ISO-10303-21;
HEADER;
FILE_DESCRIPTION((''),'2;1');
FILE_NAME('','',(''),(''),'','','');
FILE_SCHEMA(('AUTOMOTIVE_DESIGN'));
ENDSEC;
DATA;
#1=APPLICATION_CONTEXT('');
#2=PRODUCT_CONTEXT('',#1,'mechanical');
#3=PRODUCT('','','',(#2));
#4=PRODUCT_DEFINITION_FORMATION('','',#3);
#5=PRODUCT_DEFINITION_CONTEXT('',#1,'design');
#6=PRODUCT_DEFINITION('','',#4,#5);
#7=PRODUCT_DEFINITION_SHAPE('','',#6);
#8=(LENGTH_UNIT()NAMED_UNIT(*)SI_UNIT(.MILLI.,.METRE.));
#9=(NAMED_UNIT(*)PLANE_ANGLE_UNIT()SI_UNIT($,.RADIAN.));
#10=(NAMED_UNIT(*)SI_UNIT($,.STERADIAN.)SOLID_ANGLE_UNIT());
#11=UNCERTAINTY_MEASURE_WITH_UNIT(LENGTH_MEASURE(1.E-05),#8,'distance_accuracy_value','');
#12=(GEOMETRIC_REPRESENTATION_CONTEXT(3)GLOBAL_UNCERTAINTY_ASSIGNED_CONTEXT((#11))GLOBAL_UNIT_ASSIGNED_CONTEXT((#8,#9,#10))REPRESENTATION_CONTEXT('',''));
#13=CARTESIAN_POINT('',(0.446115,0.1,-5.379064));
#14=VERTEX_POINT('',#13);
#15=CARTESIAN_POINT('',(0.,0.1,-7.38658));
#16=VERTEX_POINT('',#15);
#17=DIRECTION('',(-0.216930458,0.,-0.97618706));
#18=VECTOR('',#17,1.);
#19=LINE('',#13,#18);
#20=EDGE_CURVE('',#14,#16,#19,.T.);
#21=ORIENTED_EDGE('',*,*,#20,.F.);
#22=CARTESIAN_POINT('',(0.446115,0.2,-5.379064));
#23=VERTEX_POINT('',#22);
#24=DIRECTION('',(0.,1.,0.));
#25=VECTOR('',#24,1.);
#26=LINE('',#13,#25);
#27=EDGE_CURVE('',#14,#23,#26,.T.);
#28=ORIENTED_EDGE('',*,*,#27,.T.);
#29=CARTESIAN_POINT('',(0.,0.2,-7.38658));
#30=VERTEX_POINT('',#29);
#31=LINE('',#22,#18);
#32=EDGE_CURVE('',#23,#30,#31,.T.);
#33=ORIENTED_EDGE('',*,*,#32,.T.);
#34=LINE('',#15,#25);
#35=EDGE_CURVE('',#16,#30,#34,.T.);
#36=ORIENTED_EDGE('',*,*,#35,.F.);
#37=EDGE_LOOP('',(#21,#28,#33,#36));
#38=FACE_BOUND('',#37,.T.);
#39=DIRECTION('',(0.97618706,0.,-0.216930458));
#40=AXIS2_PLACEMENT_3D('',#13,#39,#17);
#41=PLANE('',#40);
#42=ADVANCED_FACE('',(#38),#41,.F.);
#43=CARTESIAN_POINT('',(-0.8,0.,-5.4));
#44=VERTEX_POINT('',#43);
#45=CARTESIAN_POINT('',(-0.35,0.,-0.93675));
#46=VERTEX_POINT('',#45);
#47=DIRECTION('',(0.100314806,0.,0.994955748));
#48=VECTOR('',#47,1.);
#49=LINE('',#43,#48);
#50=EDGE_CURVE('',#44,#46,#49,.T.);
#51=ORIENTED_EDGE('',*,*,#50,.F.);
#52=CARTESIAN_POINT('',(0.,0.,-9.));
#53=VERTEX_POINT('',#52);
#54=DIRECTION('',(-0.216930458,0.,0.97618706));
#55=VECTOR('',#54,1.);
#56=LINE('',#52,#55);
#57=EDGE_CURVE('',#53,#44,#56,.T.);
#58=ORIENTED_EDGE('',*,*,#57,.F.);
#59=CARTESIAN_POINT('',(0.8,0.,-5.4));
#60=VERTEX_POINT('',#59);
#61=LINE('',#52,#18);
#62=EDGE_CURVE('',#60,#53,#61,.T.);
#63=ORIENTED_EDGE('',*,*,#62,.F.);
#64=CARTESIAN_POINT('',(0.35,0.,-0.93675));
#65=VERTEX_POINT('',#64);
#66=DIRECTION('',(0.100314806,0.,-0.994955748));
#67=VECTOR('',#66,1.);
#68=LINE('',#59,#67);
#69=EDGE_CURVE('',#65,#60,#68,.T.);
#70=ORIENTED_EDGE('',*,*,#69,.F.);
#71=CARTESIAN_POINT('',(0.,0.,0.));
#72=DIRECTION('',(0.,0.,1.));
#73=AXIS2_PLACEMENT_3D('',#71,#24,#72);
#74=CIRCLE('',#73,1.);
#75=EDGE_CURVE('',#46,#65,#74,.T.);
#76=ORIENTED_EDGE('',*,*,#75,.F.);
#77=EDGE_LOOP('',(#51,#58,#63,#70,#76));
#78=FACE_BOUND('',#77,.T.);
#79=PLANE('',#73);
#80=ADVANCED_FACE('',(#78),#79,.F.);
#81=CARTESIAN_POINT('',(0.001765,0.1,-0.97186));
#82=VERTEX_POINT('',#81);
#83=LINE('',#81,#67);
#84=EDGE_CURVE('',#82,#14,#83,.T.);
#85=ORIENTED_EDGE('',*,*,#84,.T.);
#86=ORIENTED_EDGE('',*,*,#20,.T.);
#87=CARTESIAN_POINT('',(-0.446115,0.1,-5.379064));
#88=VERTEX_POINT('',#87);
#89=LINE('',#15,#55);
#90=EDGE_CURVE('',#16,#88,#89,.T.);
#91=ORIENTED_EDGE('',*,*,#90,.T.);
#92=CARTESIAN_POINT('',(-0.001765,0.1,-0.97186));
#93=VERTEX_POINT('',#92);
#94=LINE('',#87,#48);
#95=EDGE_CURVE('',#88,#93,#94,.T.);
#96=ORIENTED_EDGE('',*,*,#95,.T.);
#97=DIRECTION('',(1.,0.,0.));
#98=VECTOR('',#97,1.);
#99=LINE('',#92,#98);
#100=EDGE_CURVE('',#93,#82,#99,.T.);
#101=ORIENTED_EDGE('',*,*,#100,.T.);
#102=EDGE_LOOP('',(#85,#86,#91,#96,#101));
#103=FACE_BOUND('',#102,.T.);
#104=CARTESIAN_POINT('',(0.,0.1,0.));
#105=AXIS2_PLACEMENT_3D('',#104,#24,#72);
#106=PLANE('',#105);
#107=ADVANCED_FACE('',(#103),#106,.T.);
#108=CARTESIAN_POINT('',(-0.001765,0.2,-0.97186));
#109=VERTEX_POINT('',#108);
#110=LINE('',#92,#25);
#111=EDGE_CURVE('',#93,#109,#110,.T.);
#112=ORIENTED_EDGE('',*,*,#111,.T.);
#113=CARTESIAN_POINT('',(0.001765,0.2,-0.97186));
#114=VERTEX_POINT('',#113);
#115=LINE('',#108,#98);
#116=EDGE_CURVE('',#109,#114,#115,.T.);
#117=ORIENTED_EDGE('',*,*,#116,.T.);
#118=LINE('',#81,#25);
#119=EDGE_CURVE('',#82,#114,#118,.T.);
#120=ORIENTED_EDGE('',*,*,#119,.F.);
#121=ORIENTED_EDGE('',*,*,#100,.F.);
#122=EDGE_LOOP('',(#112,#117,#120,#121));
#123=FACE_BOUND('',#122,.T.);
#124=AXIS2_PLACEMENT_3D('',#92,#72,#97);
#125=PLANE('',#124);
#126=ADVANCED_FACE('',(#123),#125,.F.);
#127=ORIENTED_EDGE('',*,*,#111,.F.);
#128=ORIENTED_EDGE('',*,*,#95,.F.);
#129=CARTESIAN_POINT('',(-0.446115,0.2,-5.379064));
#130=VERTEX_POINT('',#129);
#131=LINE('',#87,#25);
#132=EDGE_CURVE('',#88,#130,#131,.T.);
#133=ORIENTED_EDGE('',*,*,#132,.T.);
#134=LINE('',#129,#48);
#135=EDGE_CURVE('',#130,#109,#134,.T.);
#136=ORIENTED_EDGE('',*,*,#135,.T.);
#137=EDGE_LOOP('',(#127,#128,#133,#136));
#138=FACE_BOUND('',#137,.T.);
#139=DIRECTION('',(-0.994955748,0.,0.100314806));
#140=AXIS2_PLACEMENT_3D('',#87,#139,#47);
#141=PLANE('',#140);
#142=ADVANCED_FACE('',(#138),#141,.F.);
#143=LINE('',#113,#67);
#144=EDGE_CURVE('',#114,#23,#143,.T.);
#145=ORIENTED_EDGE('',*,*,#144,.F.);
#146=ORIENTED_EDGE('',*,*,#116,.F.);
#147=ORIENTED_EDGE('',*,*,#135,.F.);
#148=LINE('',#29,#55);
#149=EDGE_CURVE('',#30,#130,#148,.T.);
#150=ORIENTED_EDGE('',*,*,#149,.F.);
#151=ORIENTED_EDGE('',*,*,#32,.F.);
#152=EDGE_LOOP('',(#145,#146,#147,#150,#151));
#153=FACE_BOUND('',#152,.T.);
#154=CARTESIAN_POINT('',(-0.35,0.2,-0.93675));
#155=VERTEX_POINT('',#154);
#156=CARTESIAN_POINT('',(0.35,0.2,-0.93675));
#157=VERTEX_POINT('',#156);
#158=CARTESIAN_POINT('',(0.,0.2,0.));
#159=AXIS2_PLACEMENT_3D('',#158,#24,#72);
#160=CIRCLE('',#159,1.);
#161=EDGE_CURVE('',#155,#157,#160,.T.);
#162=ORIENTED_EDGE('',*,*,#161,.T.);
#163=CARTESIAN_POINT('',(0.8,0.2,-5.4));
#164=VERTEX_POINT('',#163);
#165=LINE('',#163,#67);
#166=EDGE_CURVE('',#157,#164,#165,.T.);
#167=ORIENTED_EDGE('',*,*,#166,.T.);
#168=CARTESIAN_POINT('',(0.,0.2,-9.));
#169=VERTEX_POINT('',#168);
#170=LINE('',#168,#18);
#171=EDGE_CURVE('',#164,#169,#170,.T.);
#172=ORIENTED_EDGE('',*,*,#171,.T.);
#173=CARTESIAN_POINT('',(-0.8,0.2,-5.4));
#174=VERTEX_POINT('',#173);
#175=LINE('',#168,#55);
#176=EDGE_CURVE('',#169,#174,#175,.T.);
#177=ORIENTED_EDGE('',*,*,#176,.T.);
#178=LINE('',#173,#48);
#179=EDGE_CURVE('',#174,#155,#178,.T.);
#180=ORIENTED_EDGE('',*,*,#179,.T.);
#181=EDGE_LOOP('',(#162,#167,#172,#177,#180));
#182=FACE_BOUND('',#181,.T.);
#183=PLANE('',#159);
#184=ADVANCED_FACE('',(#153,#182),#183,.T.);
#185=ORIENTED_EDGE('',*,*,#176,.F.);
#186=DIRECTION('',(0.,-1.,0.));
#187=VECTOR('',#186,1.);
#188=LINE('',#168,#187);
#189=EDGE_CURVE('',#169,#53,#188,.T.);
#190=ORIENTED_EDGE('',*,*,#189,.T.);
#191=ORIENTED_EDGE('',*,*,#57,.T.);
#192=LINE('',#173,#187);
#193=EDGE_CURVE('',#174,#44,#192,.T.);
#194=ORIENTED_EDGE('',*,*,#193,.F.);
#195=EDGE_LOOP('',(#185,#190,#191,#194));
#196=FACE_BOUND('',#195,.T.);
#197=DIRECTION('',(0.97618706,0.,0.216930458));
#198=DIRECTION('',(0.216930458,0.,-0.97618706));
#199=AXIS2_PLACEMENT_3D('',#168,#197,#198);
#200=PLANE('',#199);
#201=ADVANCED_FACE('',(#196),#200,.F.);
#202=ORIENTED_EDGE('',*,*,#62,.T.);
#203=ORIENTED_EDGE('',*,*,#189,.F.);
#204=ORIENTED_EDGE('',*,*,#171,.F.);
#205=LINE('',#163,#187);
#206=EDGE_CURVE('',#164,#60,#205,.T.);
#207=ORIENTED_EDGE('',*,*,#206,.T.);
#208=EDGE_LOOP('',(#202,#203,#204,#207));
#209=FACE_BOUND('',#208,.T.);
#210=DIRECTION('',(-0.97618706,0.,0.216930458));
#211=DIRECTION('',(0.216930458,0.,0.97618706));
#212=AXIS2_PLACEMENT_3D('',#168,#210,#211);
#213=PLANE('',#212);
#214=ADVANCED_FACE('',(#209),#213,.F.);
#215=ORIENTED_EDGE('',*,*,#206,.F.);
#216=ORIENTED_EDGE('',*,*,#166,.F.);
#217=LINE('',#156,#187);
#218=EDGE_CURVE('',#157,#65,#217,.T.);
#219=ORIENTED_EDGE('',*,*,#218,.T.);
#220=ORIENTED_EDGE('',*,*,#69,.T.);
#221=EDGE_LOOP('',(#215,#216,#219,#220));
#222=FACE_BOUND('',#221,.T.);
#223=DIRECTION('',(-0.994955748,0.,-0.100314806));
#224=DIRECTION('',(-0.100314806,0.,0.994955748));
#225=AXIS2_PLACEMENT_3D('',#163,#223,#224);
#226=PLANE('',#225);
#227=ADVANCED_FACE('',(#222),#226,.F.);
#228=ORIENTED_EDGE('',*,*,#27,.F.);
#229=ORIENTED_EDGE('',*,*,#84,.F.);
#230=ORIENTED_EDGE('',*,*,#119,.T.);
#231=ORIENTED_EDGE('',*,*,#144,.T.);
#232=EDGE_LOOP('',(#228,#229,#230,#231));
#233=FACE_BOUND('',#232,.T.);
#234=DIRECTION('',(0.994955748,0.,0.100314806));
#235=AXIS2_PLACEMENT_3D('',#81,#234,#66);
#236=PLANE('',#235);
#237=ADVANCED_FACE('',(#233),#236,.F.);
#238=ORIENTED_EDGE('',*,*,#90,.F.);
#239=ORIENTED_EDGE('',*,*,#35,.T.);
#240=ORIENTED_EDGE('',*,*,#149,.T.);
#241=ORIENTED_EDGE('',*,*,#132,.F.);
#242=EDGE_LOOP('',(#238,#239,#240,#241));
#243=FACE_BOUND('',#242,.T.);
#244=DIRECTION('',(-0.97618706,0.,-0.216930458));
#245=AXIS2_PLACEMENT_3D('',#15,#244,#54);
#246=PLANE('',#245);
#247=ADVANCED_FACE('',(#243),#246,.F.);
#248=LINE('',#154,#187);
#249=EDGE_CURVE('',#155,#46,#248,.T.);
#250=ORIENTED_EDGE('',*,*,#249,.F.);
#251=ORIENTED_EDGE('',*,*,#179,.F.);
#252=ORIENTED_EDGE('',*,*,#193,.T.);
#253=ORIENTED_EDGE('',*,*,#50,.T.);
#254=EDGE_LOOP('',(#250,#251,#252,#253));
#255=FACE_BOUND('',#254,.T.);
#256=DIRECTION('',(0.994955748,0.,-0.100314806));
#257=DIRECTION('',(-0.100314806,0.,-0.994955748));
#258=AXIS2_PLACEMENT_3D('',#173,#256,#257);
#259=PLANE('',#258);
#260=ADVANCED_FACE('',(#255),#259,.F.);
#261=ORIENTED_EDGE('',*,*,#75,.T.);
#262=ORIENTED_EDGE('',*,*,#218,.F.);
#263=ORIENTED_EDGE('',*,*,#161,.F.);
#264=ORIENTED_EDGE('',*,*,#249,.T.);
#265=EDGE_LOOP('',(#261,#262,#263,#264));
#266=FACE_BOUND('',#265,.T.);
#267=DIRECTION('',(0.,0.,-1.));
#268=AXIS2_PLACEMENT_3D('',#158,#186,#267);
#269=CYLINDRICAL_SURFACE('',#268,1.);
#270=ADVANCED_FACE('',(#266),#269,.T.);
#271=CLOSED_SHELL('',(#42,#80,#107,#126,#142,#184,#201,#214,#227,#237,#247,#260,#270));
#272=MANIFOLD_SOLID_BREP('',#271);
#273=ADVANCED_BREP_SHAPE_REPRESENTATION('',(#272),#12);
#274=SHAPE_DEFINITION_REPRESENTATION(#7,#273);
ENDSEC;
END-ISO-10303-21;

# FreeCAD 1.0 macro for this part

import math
import FreeCAD as App
import Part
import Sketcher


def add_polygon(sketch, points):
    """Adds a closed chain of lines whose ends are joined by coincident constraints."""
    first, n = sketch.GeometryCount, len(points)
    for a, b in zip(points, points[1:] + points[:1]):
        sketch.addGeometry(Part.LineSegment(App.Vector(*a, 0), App.Vector(*b, 0)), False)
    for i in range(n):
        sketch.addConstraint(Sketcher.Constraint("Coincident", first + i, 2, first + (i + 1) % n, 1))

doc = App.newDocument("Part")
params = doc.addObject("Spreadsheet::Sheet", "Params")
for row, (alias, value) in enumerate([
    ("sketch1_radius", "1 mm"),
    ("pad1_length", "0.2 mm"),
    ("pocket1_length", "0.1 mm"),
], start=1):
    params.set(f"A{row}", alias)
    params.set(f"B{row}", "=" + value)
    params.setAlias(f"B{row}", alias)

body = doc.addObject("PartDesign::Body", "Body")

# Sketch on XZ plane
sketch1 = doc.addObject("Sketcher::SketchObject", "Sketch")
body.addObject(sketch1)
sketch1.AttachmentSupport = (doc.XZ_Plane, [""])
sketch1.MapMode = "FlatFace"
sketch1.addGeometry([
    Part.LineSegment(App.Vector(0.8, -5.4, 0), App.Vector(0, -9, 0)),  # 0
    Part.LineSegment(App.Vector(0, -9, 0), App.Vector(-0.8, -5.4, 0)),  # 1
    Part.LineSegment(App.Vector(-0.8, -5.4, 0), App.Vector(-0.3, -0.9, 0)),  # 2
    Part.ArcOfCircle(Part.Circle(App.Vector(0, 0, 0), App.Vector(0, 0, 1), 1), math.radians(-70), math.radians(250)),  # 3
    Part.LineSegment(App.Vector(0.3, -0.9, 0), App.Vector(0.8, -5.4, 0)),  # 4
], False)
sketch1.addConstraint([
    Sketcher.Constraint("Coincident", 0, 2, 1, 1),
    Sketcher.Constraint("Coincident", 1, 2, 2, 1),
    Sketcher.Constraint("Coincident", 2, 2, 3, 2),
    Sketcher.Constraint("Coincident", 3, 1, 4, 1),
    Sketcher.Constraint("Coincident", 4, 2, 0, 1),
    Sketcher.Constraint("Coincident", 3, 3, -1, 1),
    Sketcher.Constraint("Symmetric", 1, 2, 4, 2, -2),
    Sketcher.Constraint("PointOnObject", 0, 2, -2),
    Sketcher.Constraint("Horizontal", 2, 2, 3, 1),
    Sketcher.Constraint("Radius", 3, 1.0),
    Sketcher.Constraint("DistanceY", 0, 2, -1, 1, 9.0),
    Sketcher.Constraint("DistanceX", 1, 2, -1, 1, 0.8),
    Sketcher.Constraint("DistanceY", 1, 2, -1, 1, 5.4),
    Sketcher.Constraint("DistanceX", 2, 2, 3, 1, 0.7),
])
sketch1.setExpression("Constraints[9]", "Params.sketch1_radius")
pad1 = doc.addObject("PartDesign::Pad", "Pad")
body.addObject(pad1)
pad1.Profile = sketch1
pad1.setExpression("Length", "Params.pad1_length")
pad1.Reversed = True

# Sketch on XZ plane
sketch2 = doc.addObject("Sketcher::SketchObject", "Sketch001")
body.addObject(sketch2)
sketch2.AttachmentSupport = (doc.XZ_Plane, [""])
sketch2.MapMode = "FlatFace"
sketch2.AttachmentOffset = App.Placement(App.Vector(0, 0, -0.2), App.Rotation())
add_polygon(sketch2, [(-0.0018, -0.9719), (0.0018, -0.9719), (0.4461, -5.3791), (0, -7.3866), (-0.4461, -5.3791)])  # lines 0-4
sketch2.addConstraint([
    Sketcher.Constraint("Horizontal", 0),
    Sketcher.Constraint("Symmetric", 1, 2, 3, 2, -2),
    Sketcher.Constraint("PointOnObject", 2, 2, -2),
    Sketcher.Constraint("Equal", 1, 4),
    Sketcher.Constraint("DistanceX", 0, 1, 0, 2, 0.003531),
    Sketcher.Constraint("DistanceY", 0, 2, -1, 1, 0.97186),
    Sketcher.Constraint("DistanceY", 2, 2, -1, 1, 7.38658),
    Sketcher.Constraint("DistanceX", 0, 2, 1, 2, 0.444349),
    Sketcher.Constraint("Distance", 1, 4.429548),
])
pocket1 = doc.addObject("PartDesign::Pocket", "Pocket")
body.addObject(pocket1)
pocket1.Profile = sketch2
pocket1.setExpression("Length", "Params.pocket1_length")
pocket1.Reversed = True

doc.recompute()
